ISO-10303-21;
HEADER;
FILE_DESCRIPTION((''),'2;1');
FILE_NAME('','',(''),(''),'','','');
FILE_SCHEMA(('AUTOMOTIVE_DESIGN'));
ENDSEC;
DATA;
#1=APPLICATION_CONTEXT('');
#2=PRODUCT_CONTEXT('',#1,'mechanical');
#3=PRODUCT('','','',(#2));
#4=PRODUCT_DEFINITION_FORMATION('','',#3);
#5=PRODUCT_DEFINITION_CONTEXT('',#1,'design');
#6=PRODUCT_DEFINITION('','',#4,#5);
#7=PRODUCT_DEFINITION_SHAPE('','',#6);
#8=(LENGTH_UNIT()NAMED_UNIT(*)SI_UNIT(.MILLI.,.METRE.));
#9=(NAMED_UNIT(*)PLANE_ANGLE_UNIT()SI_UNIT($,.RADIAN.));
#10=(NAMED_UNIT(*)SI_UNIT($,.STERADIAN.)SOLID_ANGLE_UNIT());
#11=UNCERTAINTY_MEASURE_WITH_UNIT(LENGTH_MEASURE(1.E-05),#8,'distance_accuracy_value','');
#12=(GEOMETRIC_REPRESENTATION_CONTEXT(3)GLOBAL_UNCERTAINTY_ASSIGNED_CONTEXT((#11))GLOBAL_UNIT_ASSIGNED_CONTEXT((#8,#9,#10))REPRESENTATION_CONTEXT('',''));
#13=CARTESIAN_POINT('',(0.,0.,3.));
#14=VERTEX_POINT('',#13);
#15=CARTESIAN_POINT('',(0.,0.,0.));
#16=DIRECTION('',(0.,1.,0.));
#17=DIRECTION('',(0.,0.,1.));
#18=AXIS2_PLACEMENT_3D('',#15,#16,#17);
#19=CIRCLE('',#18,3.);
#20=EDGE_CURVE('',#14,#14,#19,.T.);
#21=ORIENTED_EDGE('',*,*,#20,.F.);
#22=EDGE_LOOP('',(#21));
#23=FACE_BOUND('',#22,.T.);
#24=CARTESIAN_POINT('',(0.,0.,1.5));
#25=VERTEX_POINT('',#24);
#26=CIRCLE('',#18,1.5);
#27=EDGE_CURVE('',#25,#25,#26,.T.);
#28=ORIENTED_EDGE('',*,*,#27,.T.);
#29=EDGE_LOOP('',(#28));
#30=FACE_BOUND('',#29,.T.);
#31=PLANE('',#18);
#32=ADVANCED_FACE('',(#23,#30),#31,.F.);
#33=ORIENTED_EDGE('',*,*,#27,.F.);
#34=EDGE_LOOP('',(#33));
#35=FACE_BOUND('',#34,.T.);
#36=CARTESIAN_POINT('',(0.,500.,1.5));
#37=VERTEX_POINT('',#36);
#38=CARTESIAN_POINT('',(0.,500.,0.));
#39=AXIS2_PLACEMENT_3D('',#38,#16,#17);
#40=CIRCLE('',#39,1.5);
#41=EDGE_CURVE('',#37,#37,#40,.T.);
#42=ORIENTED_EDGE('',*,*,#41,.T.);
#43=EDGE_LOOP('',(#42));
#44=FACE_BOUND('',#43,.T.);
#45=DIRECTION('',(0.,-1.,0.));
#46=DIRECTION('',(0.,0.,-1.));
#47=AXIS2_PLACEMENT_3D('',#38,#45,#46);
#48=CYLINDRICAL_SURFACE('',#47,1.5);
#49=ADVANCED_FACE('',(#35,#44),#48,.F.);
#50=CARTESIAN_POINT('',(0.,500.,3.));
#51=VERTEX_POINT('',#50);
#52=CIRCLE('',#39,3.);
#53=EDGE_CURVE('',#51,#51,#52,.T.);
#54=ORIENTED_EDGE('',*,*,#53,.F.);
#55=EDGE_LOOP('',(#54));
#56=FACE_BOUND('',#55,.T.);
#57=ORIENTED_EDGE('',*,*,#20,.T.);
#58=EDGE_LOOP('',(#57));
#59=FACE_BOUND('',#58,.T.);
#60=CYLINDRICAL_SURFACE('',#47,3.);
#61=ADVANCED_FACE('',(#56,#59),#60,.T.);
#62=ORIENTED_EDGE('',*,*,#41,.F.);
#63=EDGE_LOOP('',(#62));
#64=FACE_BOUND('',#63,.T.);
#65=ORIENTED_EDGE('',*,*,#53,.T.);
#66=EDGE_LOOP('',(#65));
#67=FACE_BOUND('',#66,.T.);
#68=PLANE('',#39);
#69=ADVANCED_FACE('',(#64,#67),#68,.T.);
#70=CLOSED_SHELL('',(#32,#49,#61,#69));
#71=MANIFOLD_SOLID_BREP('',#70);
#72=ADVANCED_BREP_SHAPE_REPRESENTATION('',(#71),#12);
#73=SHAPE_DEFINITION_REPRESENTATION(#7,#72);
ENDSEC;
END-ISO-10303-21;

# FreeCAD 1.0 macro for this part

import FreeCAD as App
import Part
import Sketcher
from FreeCAD import Vector

doc = App.newDocument("Part")
body = doc.addObject("PartDesign::Body", "Body")

sketch1 = body.newObject("Sketcher::SketchObject", "Sketch")
sketch1.AttachmentSupport = (doc.getObject("XZ_Plane"), [""])
sketch1.MapMode = "FlatFace"
sketch1.addGeometry([
    Part.Circle(Vector(0, 0, 0), Vector(0, 0, 1), 3),
    Part.Circle(Vector(0, 0, 0), Vector(0, 0, 1), 1.5),
], False)
sketch1.addConstraint([
    Sketcher.Constraint("Coincident", 0, 3, -1, 1),
    Sketcher.Constraint("Coincident", 1, 3, -1, 1),
    Sketcher.Constraint("Diameter", 0, 6.0),
    Sketcher.Constraint("Diameter", 1, 3.0),
])
pad1 = body.newObject("PartDesign::Pad", "Pad")
pad1.Profile = sketch1
pad1.Length = 500
pad1.Reversed = True

doc.recompute()
